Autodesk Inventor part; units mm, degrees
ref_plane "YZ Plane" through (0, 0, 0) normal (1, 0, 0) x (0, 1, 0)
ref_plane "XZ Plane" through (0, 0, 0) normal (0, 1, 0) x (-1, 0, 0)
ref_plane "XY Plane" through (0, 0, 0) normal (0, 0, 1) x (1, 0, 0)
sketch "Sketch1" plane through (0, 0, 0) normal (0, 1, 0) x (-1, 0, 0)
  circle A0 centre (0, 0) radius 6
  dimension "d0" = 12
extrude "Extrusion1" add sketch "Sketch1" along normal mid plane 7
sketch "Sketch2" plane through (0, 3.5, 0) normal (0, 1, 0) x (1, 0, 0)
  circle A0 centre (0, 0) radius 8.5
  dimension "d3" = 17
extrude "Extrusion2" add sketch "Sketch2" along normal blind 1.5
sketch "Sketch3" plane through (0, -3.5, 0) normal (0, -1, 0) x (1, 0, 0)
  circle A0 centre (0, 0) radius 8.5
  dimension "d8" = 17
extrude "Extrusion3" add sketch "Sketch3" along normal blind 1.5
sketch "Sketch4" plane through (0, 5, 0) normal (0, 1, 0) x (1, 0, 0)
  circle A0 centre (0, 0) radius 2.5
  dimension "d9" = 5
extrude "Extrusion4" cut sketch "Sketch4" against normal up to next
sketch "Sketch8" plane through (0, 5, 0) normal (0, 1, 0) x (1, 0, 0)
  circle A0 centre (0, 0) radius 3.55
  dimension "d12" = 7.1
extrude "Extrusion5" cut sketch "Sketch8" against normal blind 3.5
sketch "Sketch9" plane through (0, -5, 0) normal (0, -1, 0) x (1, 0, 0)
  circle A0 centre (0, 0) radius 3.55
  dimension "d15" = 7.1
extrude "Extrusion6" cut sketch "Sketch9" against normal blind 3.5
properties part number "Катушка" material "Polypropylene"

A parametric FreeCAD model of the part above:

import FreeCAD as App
import Part
import Sketcher

V = App.Vector

doc = App.newDocument("Part")
params = doc.addObject("Spreadsheet::Sheet", "Params")
for row, (alias, value) in enumerate([
    ("sketch1_diameter", "12 mm"),
    ("pad1_length", "7 mm"),
    ("sketch2_diameter", "17 mm"),
    ("pad2_length", "1.5 mm"),
    ("sketch3_diameter", "17 mm"),
    ("pad3_length", "1.5 mm"),
    ("sketch4_diameter", "5 mm"),
    ("sketch5_diameter", "7.1 mm"),
    ("pocket2_length", "3.5 mm"),
    ("sketch6_diameter", "7.1 mm"),
    ("pocket3_length", "3.5 mm"),
], start=1):
    params.set(f"A{row}", alias)
    params.set(f"B{row}", "=" + value)
    params.setAlias(f"B{row}", alias)

body = doc.addObject("PartDesign::Body", "Body")

sketch1 = body.newObject("Sketcher::SketchObject", "Sketch")
sketch1.AttachmentSupport = (doc.getObject("XZ_Plane"), [""])
sketch1.MapMode = "FlatFace"
sketch1.addGeometry(Part.Circle(V(0, 0, 0), V(0, 0, 1), 6), False)
sketch1.addConstraint([
    Sketcher.Constraint("Coincident", 0, 3, -1, 1),
    Sketcher.Constraint("Diameter", 0, 12.0),
])
sketch1.setExpression("Constraints[1]", "Params.sketch1_diameter")
pad1 = body.newObject("PartDesign::Pad", "Pad")
pad1.Profile = sketch1
pad1.setExpression("Length", "Params.pad1_length")
pad1.Midplane = True

sketch2 = body.newObject("Sketcher::SketchObject", "Sketch001")
sketch2.AttachmentSupport = (doc.getObject("XZ_Plane"), [""])
sketch2.MapMode = "FlatFace"
sketch2.AttachmentOffset = App.Placement(V(0, 0, -3.5), App.Rotation())
sketch2.addGeometry(Part.Circle(V(0, 0, 0), V(0, 0, 1), 8), False)
sketch2.addConstraint([
    Sketcher.Constraint("Coincident", 0, 3, -1, 1),
    Sketcher.Constraint("Diameter", 0, 17.0),
])
sketch2.setExpression("Constraints[1]", "Params.sketch2_diameter")
pad2 = body.newObject("PartDesign::Pad", "Pad001")
pad2.Profile = sketch2
pad2.setExpression("Length", "Params.pad2_length")
pad2.Reversed = True

sketch3 = body.newObject("Sketcher::SketchObject", "Sketch002")
sketch3.AttachmentSupport = (doc.getObject("XZ_Plane"), [""])
sketch3.MapMode = "FlatFace"
sketch3.AttachmentOffset = App.Placement(V(0, 0, 3.5), App.Rotation())
sketch3.addGeometry(Part.Circle(V(0, 0, 0), V(0, 0, 1), 8), False)
sketch3.addConstraint([
    Sketcher.Constraint("Coincident", 0, 3, -1, 1),
    Sketcher.Constraint("Diameter", 0, 17.0),
])
sketch3.setExpression("Constraints[1]", "Params.sketch3_diameter")
pad3 = body.newObject("PartDesign::Pad", "Pad002")
pad3.Profile = sketch3
pad3.setExpression("Length", "Params.pad3_length")

sketch4 = body.newObject("Sketcher::SketchObject", "Sketch003")
sketch4.AttachmentSupport = (doc.getObject("XZ_Plane"), [""])
sketch4.MapMode = "FlatFace"
sketch4.AttachmentOffset = App.Placement(V(0, 0, -5), App.Rotation())
sketch4.addGeometry(Part.Circle(V(0, 0, 0), V(0, 0, 1), 2.5), False)
sketch4.addConstraint([
    Sketcher.Constraint("Coincident", 0, 3, -1, 1),
    Sketcher.Constraint("Diameter", 0, 5.0),
])
sketch4.setExpression("Constraints[1]", "Params.sketch4_diameter")
pocket1 = body.newObject("PartDesign::Pocket", "Pocket")
pocket1.Profile = sketch4
pocket1.Type = "UpToFirst"
pocket1.Reversed = True

sketch5 = body.newObject("Sketcher::SketchObject", "Sketch004")
sketch5.AttachmentSupport = (doc.getObject("XZ_Plane"), [""])
sketch5.MapMode = "FlatFace"
sketch5.AttachmentOffset = App.Placement(V(0, 0, -5), App.Rotation())
sketch5.addGeometry(Part.Circle(V(0, 0, 0), V(0, 0, 1), 3.5), False)
sketch5.addConstraint([
    Sketcher.Constraint("Coincident", 0, 3, -1, 1),
    Sketcher.Constraint("Diameter", 0, 7.1),
])
sketch5.setExpression("Constraints[1]", "Params.sketch5_diameter")
pocket2 = body.newObject("PartDesign::Pocket", "Pocket001")
pocket2.Profile = sketch5
pocket2.setExpression("Length", "Params.pocket2_length")
pocket2.Reversed = True

sketch6 = body.newObject("Sketcher::SketchObject", "Sketch005")
sketch6.AttachmentSupport = (doc.getObject("XZ_Plane"), [""])
sketch6.MapMode = "FlatFace"
sketch6.AttachmentOffset = App.Placement(V(0, 0, 5), App.Rotation())
sketch6.addGeometry(Part.Circle(V(0, 0, 0), V(0, 0, 1), 3.5), False)
sketch6.addConstraint([
    Sketcher.Constraint("Coincident", 0, 3, -1, 1),
    Sketcher.Constraint("Diameter", 0, 7.1),
])
sketch6.setExpression("Constraints[1]", "Params.sketch6_diameter")
pocket3 = body.newObject("PartDesign::Pocket", "Pocket002")
pocket3.Profile = sketch6
pocket3.setExpression("Length", "Params.pocket3_length")

doc.recompute()
